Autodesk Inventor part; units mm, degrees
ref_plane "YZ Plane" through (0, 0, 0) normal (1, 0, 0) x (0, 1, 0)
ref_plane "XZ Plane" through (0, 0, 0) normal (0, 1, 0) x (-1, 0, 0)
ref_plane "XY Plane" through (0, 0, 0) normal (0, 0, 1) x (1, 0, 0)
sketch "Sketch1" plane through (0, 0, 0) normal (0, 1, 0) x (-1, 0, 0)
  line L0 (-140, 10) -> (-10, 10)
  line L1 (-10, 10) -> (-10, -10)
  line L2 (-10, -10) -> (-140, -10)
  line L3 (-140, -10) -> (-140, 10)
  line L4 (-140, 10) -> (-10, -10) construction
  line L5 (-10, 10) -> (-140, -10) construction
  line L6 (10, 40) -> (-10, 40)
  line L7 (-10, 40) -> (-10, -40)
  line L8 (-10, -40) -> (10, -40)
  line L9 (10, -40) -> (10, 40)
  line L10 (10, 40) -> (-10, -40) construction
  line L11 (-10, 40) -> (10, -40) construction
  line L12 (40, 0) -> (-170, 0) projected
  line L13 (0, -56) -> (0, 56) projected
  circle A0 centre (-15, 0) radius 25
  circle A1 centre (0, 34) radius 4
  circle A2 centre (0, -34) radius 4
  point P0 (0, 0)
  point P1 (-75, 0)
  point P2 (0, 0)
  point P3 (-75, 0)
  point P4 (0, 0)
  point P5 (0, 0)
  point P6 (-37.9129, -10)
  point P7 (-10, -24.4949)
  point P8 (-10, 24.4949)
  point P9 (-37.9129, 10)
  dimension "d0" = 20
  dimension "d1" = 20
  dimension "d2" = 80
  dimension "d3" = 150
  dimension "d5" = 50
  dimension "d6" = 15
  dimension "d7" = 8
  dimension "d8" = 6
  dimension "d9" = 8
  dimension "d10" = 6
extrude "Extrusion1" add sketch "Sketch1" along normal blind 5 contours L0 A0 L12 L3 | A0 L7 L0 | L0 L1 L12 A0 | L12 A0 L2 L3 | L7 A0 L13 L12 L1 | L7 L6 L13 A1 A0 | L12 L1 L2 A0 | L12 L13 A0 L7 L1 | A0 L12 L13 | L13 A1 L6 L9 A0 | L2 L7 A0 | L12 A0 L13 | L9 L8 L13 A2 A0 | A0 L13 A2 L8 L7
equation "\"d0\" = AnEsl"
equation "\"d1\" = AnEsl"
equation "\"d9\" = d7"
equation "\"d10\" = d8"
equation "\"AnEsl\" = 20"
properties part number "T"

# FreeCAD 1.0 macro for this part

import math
import FreeCAD as App
import Part
import Sketcher

V = App.Vector
Q = App.Units.Quantity

doc = App.newDocument("Part")
body = doc.addObject("PartDesign::Body", "Body")

# Sketch on XZ plane
sketch1 = body.newObject("Sketcher::SketchObject", "Sketch")
sketch1.AttachmentSupport = (doc.getObject("XZ_Plane"), [""])
sketch1.MapMode = "FlatFace"
sketch1.addGeometry([
    Part.LineSegment(V(37.912878, 10, 0), V(140, 10, 0)),  # 0
    Part.LineSegment(V(140, 10, 0), V(140, -10, 0)),  # 1
    Part.LineSegment(V(140, -10, 0), V(37.912878, -10, 0)),  # 2
    Part.ArcOfCircle(Part.Circle(V(15, 0, 0), V(0, 0, 1), 25), math.radians(-101.536959), math.radians(-23.578178)),  # 3
    Part.LineSegment(V(10, -24.494897, 0), V(10, -40, 0)),  # 4
    Part.LineSegment(V(10, -40, 0), V(-10, -40, 0)),  # 5
    Part.LineSegment(V(-10, -40, 0), V(-10, 40, 0)),  # 6
    Part.LineSegment(V(-10, 40, 0), V(10, 40, 0)),  # 7
    Part.LineSegment(V(10, 40, 0), V(10, 24.494897, 0)),  # 8
    Part.ArcOfCircle(Part.Circle(V(15, 0, 0), V(0, 0, 1), 25), math.radians(23.578178), math.radians(101.536959)),  # 9
    Part.Circle(V(0, 34, 0), V(0, 0, 1), 4),  # 10
    Part.Circle(V(0, -34, 0), V(0, 0, 1), 4),  # 11
], False)
sketch1.addConstraint([
    Sketcher.Constraint("Coincident", 0, 2, 1, 1),
    Sketcher.Constraint("Coincident", 1, 2, 2, 1),
    Sketcher.Constraint("Coincident", 2, 2, 3, 2),
    Sketcher.Constraint("Coincident", 3, 1, 4, 1),
    Sketcher.Constraint("Coincident", 4, 2, 5, 1),
    Sketcher.Constraint("Coincident", 5, 2, 6, 1),
    Sketcher.Constraint("Coincident", 6, 2, 7, 1),
    Sketcher.Constraint("Coincident", 7, 2, 8, 1),
    Sketcher.Constraint("Coincident", 8, 2, 9, 2),
    Sketcher.Constraint("Coincident", 9, 1, 0, 1),
    Sketcher.Constraint("Horizontal", 0),
    Sketcher.Constraint("Vertical", 1),
    Sketcher.Constraint("Horizontal", 2),
    Sketcher.Constraint("Vertical", 4),
    Sketcher.Constraint("Horizontal", 5),
    Sketcher.Constraint("Vertical", 6),
    Sketcher.Constraint("Horizontal", 7),
    Sketcher.Constraint("Vertical", 8),
    Sketcher.Constraint("Coincident", 9, 3, 3, 3),
    Sketcher.Constraint("Equal", 3, 9),
    Sketcher.Constraint("Equal", 10, 11),
    Sketcher.Constraint("Symmetric", 10, 3, 11, 3, -1, 1),
    Sketcher.Constraint("Symmetric", 4, 2, 6, 2, -1, 1),
    Sketcher.Constraint("Symmetric", 3, 1, 8, 2, -1),
    Sketcher.Constraint("PointOnObject", 10, 3, -2),
    Sketcher.Constraint("Vertical", 2, 2, 9, 1),
    Sketcher.Constraint("Equal", 7, 1),
    Sketcher.Constraint("Diameter", 10, Q("8 mm")),
    Sketcher.Constraint("Radius", 3, Q("25 mm")),
    Sketcher.Constraint("DistanceX", 5, 2, 5, 1, Q("20 mm")),
    Sketcher.Constraint("DistanceY", 6, 1, 6, 2, Q("80 mm")),
    Sketcher.Constraint("DistanceX", -1, 1, 3, 3, Q("15 mm")),
    Sketcher.Constraint("DistanceY", 4, 2, 11, 3, Q("6 mm")),
    Sketcher.Constraint("DistanceX", -1, 1, 0, 2, Q("140 mm")),
])
pad1 = body.newObject("PartDesign::Pad", "Pad")
pad1.Profile = sketch1
pad1.Length = 5
pad1.Reversed = True

doc.recompute()
